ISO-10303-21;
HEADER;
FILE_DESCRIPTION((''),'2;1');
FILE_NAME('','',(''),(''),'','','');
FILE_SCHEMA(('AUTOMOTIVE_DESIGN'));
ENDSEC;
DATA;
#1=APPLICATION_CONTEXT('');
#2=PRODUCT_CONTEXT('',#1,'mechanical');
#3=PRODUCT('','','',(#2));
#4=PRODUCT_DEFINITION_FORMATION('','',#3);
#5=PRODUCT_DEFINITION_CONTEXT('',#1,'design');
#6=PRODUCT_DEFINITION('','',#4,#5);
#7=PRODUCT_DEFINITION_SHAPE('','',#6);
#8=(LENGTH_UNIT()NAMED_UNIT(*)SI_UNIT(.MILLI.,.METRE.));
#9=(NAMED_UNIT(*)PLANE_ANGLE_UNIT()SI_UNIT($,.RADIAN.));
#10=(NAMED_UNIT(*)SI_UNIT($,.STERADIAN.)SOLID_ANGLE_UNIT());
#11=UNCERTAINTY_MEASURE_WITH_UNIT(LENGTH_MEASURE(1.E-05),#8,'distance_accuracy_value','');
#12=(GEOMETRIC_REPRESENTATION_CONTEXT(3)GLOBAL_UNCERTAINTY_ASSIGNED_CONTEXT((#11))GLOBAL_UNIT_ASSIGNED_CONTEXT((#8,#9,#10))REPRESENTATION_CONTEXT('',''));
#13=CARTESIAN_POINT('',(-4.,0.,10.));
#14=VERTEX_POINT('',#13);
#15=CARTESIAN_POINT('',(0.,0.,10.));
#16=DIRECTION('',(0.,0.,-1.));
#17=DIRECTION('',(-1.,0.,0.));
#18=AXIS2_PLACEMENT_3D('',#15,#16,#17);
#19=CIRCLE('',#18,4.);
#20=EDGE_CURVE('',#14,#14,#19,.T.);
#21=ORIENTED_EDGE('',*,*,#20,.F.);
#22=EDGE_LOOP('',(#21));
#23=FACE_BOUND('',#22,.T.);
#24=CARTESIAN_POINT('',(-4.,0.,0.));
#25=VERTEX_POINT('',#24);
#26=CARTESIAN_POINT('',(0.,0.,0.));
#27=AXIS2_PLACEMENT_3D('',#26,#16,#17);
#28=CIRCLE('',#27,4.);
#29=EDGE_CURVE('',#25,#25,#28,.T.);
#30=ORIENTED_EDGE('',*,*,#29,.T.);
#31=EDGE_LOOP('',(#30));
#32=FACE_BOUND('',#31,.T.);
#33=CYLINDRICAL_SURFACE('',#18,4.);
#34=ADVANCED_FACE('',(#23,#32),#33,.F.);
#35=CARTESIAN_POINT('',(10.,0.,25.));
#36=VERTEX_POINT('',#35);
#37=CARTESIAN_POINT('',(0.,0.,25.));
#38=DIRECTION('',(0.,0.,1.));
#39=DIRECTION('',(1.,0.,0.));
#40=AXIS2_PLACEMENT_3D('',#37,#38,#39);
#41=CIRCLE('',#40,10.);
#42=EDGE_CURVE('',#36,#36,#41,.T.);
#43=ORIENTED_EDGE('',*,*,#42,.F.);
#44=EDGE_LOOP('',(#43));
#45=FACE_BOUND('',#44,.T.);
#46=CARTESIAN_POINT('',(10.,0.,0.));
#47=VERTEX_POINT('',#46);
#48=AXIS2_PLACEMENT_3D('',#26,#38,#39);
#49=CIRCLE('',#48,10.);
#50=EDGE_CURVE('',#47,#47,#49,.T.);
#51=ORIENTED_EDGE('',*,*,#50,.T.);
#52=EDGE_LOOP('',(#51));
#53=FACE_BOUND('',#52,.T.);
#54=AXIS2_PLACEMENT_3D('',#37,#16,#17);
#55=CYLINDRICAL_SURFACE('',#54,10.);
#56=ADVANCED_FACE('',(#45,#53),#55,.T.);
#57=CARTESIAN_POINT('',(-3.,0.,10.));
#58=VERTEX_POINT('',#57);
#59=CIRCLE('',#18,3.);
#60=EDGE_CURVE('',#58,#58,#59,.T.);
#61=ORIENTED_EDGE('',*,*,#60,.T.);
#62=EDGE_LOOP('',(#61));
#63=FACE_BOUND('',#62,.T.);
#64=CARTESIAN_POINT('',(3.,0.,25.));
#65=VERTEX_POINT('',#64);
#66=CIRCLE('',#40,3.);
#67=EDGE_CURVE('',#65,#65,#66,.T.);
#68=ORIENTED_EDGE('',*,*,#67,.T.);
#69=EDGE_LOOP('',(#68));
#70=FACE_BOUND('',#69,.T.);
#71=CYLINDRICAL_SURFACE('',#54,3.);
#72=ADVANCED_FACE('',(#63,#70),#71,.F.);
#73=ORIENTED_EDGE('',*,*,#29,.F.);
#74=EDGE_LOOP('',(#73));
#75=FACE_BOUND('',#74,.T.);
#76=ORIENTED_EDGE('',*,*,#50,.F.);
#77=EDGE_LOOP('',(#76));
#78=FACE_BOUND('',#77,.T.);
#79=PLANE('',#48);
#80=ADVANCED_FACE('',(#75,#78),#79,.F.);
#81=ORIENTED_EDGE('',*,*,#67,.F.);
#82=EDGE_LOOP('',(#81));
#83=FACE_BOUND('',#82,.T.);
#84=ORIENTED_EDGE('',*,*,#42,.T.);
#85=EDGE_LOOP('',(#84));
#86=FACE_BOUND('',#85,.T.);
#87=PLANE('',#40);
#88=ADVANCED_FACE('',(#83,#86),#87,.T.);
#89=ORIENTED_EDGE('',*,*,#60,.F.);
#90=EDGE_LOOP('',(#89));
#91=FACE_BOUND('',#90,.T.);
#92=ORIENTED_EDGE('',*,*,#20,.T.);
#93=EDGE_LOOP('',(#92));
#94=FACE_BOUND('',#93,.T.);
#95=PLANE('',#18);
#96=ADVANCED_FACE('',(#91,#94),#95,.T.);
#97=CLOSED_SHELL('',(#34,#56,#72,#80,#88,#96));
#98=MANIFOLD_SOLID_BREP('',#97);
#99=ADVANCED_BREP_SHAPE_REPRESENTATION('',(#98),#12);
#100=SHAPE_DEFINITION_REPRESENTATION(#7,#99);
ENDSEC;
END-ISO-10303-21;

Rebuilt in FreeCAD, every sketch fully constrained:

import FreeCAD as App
import Part
import Sketcher
from FreeCAD import Vector
Q = App.Units.Quantity

doc = App.newDocument("Part")
params = doc.addObject("Spreadsheet::Sheet", "Params")
for row, (alias, value) in enumerate([
    ("sketch1_diameter", "20 mm"),
    ("sketch1_diameter2", "6 mm"),
    ("pad1_length", "25 mm"),
    ("sketch2_diameter", "8 mm"),
    ("pocket1_length", "10 mm"),
], start=1):
    params.set(f"A{row}", alias)
    params.set(f"B{row}", "=" + value)
    params.setAlias(f"B{row}", alias)

body = doc.addObject("PartDesign::Body", "Body")

# Sketch on XY plane
sketch1 = doc.addObject("Sketcher::SketchObject", "Sketch")
body.addObject(sketch1)
sketch1.AttachmentSupport = (doc.XY_Plane, [""])
sketch1.MapMode = "FlatFace"
sketch1.addGeometry(Part.Circle(Vector(0, 0, 0), Vector(0, 0, 1), 10), False)
sketch1.addGeometry(Part.Circle(Vector(0, 0, 0), Vector(0, 0, 1), 3), False)
sketch1.addConstraint(Sketcher.Constraint("Coincident", 0, 3, -1, 1))
sketch1.addConstraint(Sketcher.Constraint("Coincident", 1, 3, -1, 1))
sketch1.addConstraint(Sketcher.Constraint("Diameter", 0, Q("20 mm")))
sketch1.addConstraint(Sketcher.Constraint("Diameter", 1, Q("6 mm")))
sketch1.setExpression("Constraints[2]", "Params.sketch1_diameter")
sketch1.setExpression("Constraints[3]", "Params.sketch1_diameter2")
pad1 = doc.addObject("PartDesign::Pad", "Pad")
body.addObject(pad1)
pad1.Profile = sketch1
pad1.setExpression("Length", "Params.pad1_length")

# Sketch on XY plane
sketch2 = doc.addObject("Sketcher::SketchObject", "Sketch001")
body.addObject(sketch2)
sketch2.AttachmentSupport = (doc.XY_Plane, [""])
sketch2.MapMode = "FlatFace"
sketch2.addGeometry(Part.Circle(Vector(0, 0, 0), Vector(0, 0, 1), 4), False)
sketch2.addConstraint(Sketcher.Constraint("Coincident", 0, 3, -1, 1))
sketch2.addConstraint(Sketcher.Constraint("Diameter", 0, Q("8 mm")))
sketch2.setExpression("Constraints[1]", "Params.sketch2_diameter")
pocket1 = doc.addObject("PartDesign::Pocket", "Pocket")
body.addObject(pocket1)
pocket1.Profile = sketch2
pocket1.setExpression("Length", "Params.pocket1_length")
pocket1.Reversed = True

doc.recompute()
